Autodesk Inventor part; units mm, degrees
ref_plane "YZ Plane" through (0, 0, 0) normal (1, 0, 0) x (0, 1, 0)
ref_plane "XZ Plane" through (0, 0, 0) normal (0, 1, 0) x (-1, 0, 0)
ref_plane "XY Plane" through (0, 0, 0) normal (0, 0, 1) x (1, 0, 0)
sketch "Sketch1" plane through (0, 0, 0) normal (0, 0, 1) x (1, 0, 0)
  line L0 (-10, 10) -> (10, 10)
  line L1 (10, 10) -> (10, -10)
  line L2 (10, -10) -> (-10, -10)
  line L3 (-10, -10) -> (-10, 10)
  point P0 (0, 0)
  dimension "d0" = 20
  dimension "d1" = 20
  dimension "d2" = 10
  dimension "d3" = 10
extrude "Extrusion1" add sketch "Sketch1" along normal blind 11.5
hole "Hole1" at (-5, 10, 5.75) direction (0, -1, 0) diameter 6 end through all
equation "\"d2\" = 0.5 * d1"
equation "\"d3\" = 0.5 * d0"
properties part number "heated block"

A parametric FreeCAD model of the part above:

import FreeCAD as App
import Part
import Sketcher


def add_polygon(sketch, points):
    """Adds a closed chain of lines whose ends are joined by coincident constraints."""
    first, n = sketch.GeometryCount, len(points)
    for a, b in zip(points, points[1:] + points[:1]):
        sketch.addGeometry(Part.LineSegment(App.Vector(*a, 0), App.Vector(*b, 0)), False)
    for i in range(n):
        sketch.addConstraint(Sketcher.Constraint("Coincident", first + i, 2, first + (i + 1) % n, 1))

doc = App.newDocument("Part")
body = doc.addObject("PartDesign::Body", "Body")

# Sketch on XY plane
sketch1 = body.newObject("Sketcher::SketchObject", "Sketch")
sketch1.AttachmentSupport = (doc.getObject("XY_Plane"), [""])
sketch1.MapMode = "FlatFace"
add_polygon(sketch1, [(10, 10), (-10, 10), (-10, -10), (10, -10)])  # lines 0-3
sketch1.addConstraint(Sketcher.Constraint("Horizontal", 0))
sketch1.addConstraint(Sketcher.Constraint("Vertical", 1))
sketch1.addConstraint(Sketcher.Constraint("Horizontal", 2))
sketch1.addConstraint(Sketcher.Constraint("Vertical", 3))
sketch1.addConstraint(Sketcher.Constraint("Symmetric", 0, 2, 2, 2, -1, 1))
sketch1.addConstraint(Sketcher.Constraint("Equal", 2, 1))
sketch1.addConstraint(Sketcher.Constraint("DistanceX", 0, 2, 0, 1, 20.0))
pad1 = body.newObject("PartDesign::Pad", "Pad")
pad1.Profile = sketch1
pad1.Length = 11.5

# Sketch on XZ plane
sketch2 = body.newObject("Sketcher::SketchObject", "Sketch001")
sketch2.AttachmentSupport = (doc.getObject("XZ_Plane"), [""])
sketch2.MapMode = "FlatFace"
sketch2.AttachmentOffset = App.Placement(App.Vector(0, 0, -10), App.Rotation())
sketch2.addGeometry(Part.Circle(App.Vector(-5, 5.8, 0), App.Vector(0, 0, 1), 3), False)
sketch2.addConstraint(Sketcher.Constraint("Diameter", 0, 6.0))
sketch2.addConstraint(Sketcher.Constraint("DistanceX", 0, 3, -1, 1, 5.0))
sketch2.addConstraint(Sketcher.Constraint("DistanceY", -1, 1, 0, 3, 5.75))
doc.recompute()
hole = body.newObject("PartDesign::Hole", "Hole")
hole.Profile = sketch2
hole.ThreadType = "None"
hole.Diameter = 6
hole.DepthType = "ThroughAll"
hole.Reversed = True

doc.recompute()
